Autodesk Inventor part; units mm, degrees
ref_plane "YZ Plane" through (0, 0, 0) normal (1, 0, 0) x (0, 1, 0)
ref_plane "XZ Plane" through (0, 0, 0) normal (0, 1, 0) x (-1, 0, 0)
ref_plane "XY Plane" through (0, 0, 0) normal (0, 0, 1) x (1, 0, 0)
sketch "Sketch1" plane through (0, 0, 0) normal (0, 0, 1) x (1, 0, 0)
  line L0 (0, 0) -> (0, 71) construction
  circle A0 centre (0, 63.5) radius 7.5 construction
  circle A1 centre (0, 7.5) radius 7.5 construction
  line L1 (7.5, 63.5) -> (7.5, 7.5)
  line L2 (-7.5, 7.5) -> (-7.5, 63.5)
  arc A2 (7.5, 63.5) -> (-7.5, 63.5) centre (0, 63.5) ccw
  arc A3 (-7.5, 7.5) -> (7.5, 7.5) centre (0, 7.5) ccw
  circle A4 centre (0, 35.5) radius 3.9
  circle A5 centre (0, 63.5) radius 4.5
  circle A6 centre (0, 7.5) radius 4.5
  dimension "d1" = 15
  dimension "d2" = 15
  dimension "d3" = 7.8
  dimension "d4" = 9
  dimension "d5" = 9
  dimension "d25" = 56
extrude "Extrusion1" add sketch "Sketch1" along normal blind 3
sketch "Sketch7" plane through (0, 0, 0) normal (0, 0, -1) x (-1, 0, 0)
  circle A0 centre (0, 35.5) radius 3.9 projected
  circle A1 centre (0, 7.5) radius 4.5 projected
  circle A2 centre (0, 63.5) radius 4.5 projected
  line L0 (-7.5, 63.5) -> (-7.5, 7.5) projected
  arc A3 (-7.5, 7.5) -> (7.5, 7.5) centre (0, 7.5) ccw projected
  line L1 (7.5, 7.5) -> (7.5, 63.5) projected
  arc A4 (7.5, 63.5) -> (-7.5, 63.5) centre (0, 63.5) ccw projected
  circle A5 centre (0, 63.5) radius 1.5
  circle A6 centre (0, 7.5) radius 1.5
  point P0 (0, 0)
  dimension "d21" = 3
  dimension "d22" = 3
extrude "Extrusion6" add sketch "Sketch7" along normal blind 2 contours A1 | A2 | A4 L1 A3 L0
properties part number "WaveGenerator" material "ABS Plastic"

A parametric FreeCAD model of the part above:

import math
import FreeCAD as App
import Part
import Sketcher
from FreeCAD import Vector
Q = App.Units.Quantity

doc = App.newDocument("Part")
body = doc.addObject("PartDesign::Body", "Body")

sketch1 = doc.addObject("Sketcher::SketchObject", "Sketch")
body.addObject(sketch1)
sketch1.AttachmentSupport = (doc.XY_Plane, [""])
sketch1.MapMode = "FlatFace"
sketch1.addGeometry([
    Part.LineSegment(Vector(7.5, 7.5, 0), Vector(7.5, 63.5, 0)),
    Part.ArcOfCircle(Part.Circle(Vector(0, 63.5, 0), Vector(0, 0, 1), 7.5), math.radians(0), math.radians(180)),
    Part.LineSegment(Vector(-7.5, 63.5, 0), Vector(-7.5, 7.5, 0)),
    Part.ArcOfCircle(Part.Circle(Vector(0, 7.5, 0), Vector(0, 0, 1), 7.5), math.radians(180), math.radians(360)),
    Part.Circle(Vector(0, 7.5, 0), Vector(0, 0, 1), 4.5),
    Part.Circle(Vector(0, 35.5, 0), Vector(0, 0, 1), 3.9),
    Part.Circle(Vector(0, 63.5, 0), Vector(0, 0, 1), 4.5),
], False)
sketch1.addConstraint([
    Sketcher.Constraint("Tangent", 0, 2, 1, 1),
    Sketcher.Constraint("Tangent", 1, 2, 2, 1),
    Sketcher.Constraint("Tangent", 2, 2, 3, 1),
    Sketcher.Constraint("Tangent", 3, 2, 0, 1),
    Sketcher.Constraint("Vertical", 0),
    Sketcher.Constraint("Vertical", 2),
    Sketcher.Constraint("Coincident", 4, 3, 3, 3),
    Sketcher.Constraint("Coincident", 6, 3, 1, 3),
    Sketcher.Constraint("Equal", 4, 6),
    Sketcher.Constraint("PointOnObject", 1, 3, -2),
    Sketcher.Constraint("PointOnObject", 5, 3, -2),
    Sketcher.Constraint("Diameter", 4, Q("9 mm")),
    Sketcher.Constraint("Diameter", 5, Q("7.8 mm")),
    Sketcher.Constraint("Radius", 1, Q("7.5 mm")),
    Sketcher.Constraint("DistanceY", 0, 1, 0, 2, Q("56 mm")),
    Sketcher.Constraint("DistanceY", 5, 3, 1, 3, Q("28 mm")),
    Sketcher.Constraint("DistanceY", -1, 1, 1, 3, Q("63.5 mm")),
])
pad1 = doc.addObject("PartDesign::Pad", "Pad")
body.addObject(pad1)
pad1.Profile = sketch1
pad1.Length = 3

sketch2 = doc.addObject("Sketcher::SketchObject", "Sketch001")
body.addObject(sketch2)
sketch2.AttachmentSupport = (doc.XY_Plane, [""])
sketch2.MapMode = "FlatFace"
sketch2.addGeometry([
    Part.ArcOfCircle(Part.Circle(Vector(0, 63.5, 0), Vector(0, 0, 1), 7.5), math.radians(0), math.radians(180)),
    Part.LineSegment(Vector(7.5, 63.5, 0), Vector(7.5, 7.5, 0)),
    Part.ArcOfCircle(Part.Circle(Vector(0, 7.5, 0), Vector(0, 0, 1), 7.5), math.radians(180), math.radians(360)),
    Part.LineSegment(Vector(-7.5, 7.5, 0), Vector(-7.5, 63.5, 0)),
    Part.Circle(Vector(0, 7.5, 0), Vector(0, 0, 1), 1.5),
    Part.Circle(Vector(0, 35.5, 0), Vector(0, 0, 1), 3.9),
    Part.Circle(Vector(0, 63.5, 0), Vector(0, 0, 1), 1.5),
], False)
sketch2.addConstraint([
    Sketcher.Constraint("Tangent", 0, 1, 1, 1),
    Sketcher.Constraint("Tangent", 1, 2, 2, 2),
    Sketcher.Constraint("Tangent", 2, 1, 3, 1),
    Sketcher.Constraint("Tangent", 3, 2, 0, 2),
    Sketcher.Constraint("Vertical", 1),
    Sketcher.Constraint("Vertical", 3),
    Sketcher.Constraint("Coincident", 4, 3, 2, 3),
    Sketcher.Constraint("Coincident", 6, 3, 0, 3),
    Sketcher.Constraint("Equal", 4, 6),
    Sketcher.Constraint("PointOnObject", 0, 3, -2),
    Sketcher.Constraint("PointOnObject", 5, 3, -2),
    Sketcher.Constraint("Diameter", 4, Q("3 mm")),
    Sketcher.Constraint("Diameter", 5, Q("7.8 mm")),
    Sketcher.Constraint("Radius", 0, Q("7.5 mm")),
    Sketcher.Constraint("DistanceY", 1, 2, 1, 1, Q("56 mm")),
    Sketcher.Constraint("DistanceY", 5, 3, 0, 3, Q("28 mm")),
    Sketcher.Constraint("DistanceY", -1, 1, 0, 3, Q("63.5 mm")),
])
pad2 = doc.addObject("PartDesign::Pad", "Pad001")
body.addObject(pad2)
pad2.Profile = sketch2
pad2.Length = 2
pad2.Reversed = True

doc.recompute()
